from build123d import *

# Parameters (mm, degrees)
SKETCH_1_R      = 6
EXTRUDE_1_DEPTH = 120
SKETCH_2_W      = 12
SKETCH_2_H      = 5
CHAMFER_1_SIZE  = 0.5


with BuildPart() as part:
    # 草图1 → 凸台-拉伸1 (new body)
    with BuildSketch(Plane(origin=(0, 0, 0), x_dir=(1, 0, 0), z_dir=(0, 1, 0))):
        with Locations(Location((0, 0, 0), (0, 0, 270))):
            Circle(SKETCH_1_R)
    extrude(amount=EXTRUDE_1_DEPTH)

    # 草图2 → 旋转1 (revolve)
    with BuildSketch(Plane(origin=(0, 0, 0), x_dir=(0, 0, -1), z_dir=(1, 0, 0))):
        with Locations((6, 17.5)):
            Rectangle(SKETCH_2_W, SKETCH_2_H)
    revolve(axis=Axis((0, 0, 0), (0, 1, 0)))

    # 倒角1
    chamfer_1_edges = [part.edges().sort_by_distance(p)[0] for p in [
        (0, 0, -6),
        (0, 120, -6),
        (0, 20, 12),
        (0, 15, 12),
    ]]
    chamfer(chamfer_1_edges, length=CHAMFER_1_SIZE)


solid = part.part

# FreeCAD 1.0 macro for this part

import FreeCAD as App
import Part
import Sketcher


def edges_at(feature, points):
    """Names of the edges that pass closest to the given points."""
    edges = feature.Shape.Edges
    near = lambda p: min(range(len(edges)), key=lambda i: edges[i].distToShape(Part.Vertex(*p))[0])
    return sorted({f"Edge{near(p) + 1}" for p in points})


def add_polygon(sketch, points):
    """Adds a closed chain of lines whose ends are joined by coincident constraints."""
    first, n = sketch.GeometryCount, len(points)
    for a, b in zip(points, points[1:] + points[:1]):
        sketch.addGeometry(Part.LineSegment(App.Vector(*a, 0), App.Vector(*b, 0)), False)
    for i in range(n):
        sketch.addConstraint(Sketcher.Constraint("Coincident", first + i, 2, first + (i + 1) % n, 1))

doc = App.newDocument("Part")
body = doc.addObject("PartDesign::Body", "Body")

# Sketch on XZ plane
sketch1 = body.newObject("Sketcher::SketchObject", "Sketch")
sketch1.AttachmentSupport = (doc.getObject("XZ_Plane"), [""])
sketch1.MapMode = "FlatFace"
sketch1.addGeometry(Part.Circle(App.Vector(0, 0, 0), App.Vector(0, 0, 1), 6), False)
sketch1.addConstraint(Sketcher.Constraint("Coincident", 0, 3, -1, 1))
sketch1.addConstraint(Sketcher.Constraint("Diameter", 0, 12.0))
pad1 = body.newObject("PartDesign::Pad", "Pad")
pad1.Profile = sketch1
pad1.Length = 120
pad1.Reversed = True

# Sketch on YZ plane
sketch2 = body.newObject("Sketcher::SketchObject", "Sketch001")
sketch2.AttachmentSupport = (doc.getObject("YZ_Plane"), [""])
sketch2.MapMode = "FlatFace"
add_polygon(sketch2, [(20, 0), (15, 0), (15, -12), (20, -12)])  # lines 0-3
sketch2.addConstraint(Sketcher.Constraint("Horizontal", 0))
sketch2.addConstraint(Sketcher.Constraint("Vertical", 1))
sketch2.addConstraint(Sketcher.Constraint("Horizontal", 2))
sketch2.addConstraint(Sketcher.Constraint("Vertical", 3))
sketch2.addConstraint(Sketcher.Constraint("PointOnObject", 0, 2, -1))
sketch2.addConstraint(Sketcher.Constraint("DistanceX", 0, 2, 0, 1, 5.0))
sketch2.addConstraint(Sketcher.Constraint("DistanceY", 1, 2, 1, 1, 12.0))
sketch2.addConstraint(Sketcher.Constraint("DistanceX", -1, 1, 0, 2, 15.0))
revolution = body.newObject("PartDesign::Revolution", "Revolution")
revolution.Profile = sketch2
revolution.ReferenceAxis = (sketch2, ["H_Axis"])
revolution.Angle = 360
doc.recompute()

chamfer = body.newObject("PartDesign::Chamfer", "Chamfer")
chamfer.Base = (revolution, edges_at(revolution, [
    (0, 0, -6),
    (0, 120, -6),
    (0, 20, 12),
    (0, 15, 12),
]))
chamfer.Size = 0.5

doc.recompute()
